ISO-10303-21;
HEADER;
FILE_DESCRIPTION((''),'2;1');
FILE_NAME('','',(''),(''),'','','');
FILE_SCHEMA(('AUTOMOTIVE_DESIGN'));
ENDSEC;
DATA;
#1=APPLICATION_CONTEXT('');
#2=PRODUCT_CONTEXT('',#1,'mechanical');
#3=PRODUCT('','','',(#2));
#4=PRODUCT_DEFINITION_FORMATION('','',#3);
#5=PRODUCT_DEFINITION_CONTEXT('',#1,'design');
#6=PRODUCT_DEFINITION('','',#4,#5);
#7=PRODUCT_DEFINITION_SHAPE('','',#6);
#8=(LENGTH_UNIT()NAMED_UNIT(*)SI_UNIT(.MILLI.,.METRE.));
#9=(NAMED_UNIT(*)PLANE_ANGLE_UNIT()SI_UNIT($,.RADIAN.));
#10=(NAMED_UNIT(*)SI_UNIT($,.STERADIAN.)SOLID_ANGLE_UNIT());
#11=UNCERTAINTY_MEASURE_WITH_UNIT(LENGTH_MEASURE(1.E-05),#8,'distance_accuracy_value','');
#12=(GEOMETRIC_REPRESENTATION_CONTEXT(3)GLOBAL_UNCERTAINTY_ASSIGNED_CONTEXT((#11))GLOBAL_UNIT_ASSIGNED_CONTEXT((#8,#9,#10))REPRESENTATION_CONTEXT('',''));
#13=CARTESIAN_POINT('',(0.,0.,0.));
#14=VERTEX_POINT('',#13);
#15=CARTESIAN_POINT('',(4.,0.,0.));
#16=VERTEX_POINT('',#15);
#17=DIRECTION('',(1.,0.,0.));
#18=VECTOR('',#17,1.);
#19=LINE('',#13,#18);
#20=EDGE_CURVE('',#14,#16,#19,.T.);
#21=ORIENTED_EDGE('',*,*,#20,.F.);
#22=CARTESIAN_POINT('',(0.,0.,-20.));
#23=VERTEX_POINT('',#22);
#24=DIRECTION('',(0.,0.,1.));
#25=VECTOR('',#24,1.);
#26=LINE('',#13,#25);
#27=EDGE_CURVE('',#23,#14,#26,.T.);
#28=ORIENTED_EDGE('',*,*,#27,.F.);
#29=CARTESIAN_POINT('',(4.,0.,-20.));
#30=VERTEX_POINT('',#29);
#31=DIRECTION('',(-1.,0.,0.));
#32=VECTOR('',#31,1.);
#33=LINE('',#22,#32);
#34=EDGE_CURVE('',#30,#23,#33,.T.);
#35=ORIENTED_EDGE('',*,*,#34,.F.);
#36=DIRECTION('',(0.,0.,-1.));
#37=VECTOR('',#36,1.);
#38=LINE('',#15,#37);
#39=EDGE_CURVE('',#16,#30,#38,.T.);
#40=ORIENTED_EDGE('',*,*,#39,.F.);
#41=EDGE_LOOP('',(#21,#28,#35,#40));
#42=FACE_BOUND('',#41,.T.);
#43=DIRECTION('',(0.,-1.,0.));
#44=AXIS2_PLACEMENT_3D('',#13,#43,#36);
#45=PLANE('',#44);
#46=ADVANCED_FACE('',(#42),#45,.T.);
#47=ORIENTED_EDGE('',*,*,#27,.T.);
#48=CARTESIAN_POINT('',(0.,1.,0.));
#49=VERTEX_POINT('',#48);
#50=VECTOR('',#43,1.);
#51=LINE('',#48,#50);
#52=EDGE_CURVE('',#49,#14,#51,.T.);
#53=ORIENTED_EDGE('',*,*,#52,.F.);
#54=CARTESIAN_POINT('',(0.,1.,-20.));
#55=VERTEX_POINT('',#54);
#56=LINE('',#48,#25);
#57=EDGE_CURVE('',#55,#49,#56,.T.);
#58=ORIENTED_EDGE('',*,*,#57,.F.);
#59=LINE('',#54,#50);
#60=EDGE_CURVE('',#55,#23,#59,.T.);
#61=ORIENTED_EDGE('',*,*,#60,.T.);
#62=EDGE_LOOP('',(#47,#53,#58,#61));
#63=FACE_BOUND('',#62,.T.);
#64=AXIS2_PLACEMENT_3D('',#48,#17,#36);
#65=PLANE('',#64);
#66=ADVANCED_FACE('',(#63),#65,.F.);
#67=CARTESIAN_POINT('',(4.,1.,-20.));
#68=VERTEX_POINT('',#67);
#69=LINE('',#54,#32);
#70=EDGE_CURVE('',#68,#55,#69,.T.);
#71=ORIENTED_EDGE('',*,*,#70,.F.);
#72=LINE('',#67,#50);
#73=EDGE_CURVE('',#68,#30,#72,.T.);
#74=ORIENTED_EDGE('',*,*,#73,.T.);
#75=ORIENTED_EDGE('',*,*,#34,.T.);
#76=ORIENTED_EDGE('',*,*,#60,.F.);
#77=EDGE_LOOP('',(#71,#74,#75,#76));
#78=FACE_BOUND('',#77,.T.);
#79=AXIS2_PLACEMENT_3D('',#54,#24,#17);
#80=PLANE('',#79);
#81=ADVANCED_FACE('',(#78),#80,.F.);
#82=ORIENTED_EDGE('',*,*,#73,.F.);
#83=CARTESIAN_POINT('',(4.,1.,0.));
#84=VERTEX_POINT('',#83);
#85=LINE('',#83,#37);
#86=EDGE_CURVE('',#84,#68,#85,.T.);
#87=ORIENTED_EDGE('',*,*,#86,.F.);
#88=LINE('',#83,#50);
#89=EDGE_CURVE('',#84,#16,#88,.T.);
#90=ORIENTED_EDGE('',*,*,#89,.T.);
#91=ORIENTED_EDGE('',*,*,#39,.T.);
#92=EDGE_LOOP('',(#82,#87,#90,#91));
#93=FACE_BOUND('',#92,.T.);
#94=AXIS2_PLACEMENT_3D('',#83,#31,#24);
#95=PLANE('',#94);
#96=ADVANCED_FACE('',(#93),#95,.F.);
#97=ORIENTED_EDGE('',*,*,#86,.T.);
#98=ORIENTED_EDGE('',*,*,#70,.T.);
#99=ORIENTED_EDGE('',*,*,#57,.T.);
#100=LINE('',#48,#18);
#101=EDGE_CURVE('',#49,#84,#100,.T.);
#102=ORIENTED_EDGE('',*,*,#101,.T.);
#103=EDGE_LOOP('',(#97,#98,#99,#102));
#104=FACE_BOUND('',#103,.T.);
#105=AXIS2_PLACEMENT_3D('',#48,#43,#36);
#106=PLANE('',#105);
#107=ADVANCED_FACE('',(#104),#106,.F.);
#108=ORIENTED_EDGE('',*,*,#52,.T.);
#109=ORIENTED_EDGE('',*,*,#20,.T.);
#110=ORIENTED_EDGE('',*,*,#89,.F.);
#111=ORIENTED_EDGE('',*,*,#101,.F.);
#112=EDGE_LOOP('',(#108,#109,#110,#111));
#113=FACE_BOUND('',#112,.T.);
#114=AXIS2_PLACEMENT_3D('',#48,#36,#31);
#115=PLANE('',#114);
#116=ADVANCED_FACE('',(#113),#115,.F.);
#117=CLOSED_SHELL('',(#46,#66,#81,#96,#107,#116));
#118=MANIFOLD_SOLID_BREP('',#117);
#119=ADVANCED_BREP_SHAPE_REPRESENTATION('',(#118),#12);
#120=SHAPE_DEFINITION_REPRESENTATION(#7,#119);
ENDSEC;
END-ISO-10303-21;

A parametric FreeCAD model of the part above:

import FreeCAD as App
import Part
import Sketcher

V = App.Vector


def add_polygon(sketch, points):
    """Adds a closed chain of lines whose ends are joined by coincident constraints."""
    first, n = sketch.GeometryCount, len(points)
    for a, b in zip(points, points[1:] + points[:1]):
        sketch.addGeometry(Part.LineSegment(App.Vector(*a, 0), App.Vector(*b, 0)), False)
    for i in range(n):
        sketch.addConstraint(Sketcher.Constraint("Coincident", first + i, 2, first + (i + 1) % n, 1))

doc = App.newDocument("Part")
body = doc.addObject("PartDesign::Body", "Body")

sketch1 = body.newObject("Sketcher::SketchObject", "Sketch")
sketch1.AttachmentSupport = (doc.getObject("XZ_Plane"), [""])
sketch1.MapMode = "FlatFace"
add_polygon(sketch1, [(0, -20), (0, 0), (4, 0), (4, -20)])
sketch1.addConstraint([
    Sketcher.Constraint("Vertical", 0),
    Sketcher.Constraint("Horizontal", 1),
    Sketcher.Constraint("Vertical", 2),
    Sketcher.Constraint("Horizontal", 3),
    Sketcher.Constraint("Coincident", 0, 2, -1, 1),
    Sketcher.Constraint("DistanceX", 1, 1, 1, 2, 4.0),
    Sketcher.Constraint("DistanceY", 0, 1, 0, 2, 20.0),
])
pad1 = body.newObject("PartDesign::Pad", "Pad")
pad1.Profile = sketch1
pad1.Length = 1
pad1.Reversed = True

doc.recompute()
